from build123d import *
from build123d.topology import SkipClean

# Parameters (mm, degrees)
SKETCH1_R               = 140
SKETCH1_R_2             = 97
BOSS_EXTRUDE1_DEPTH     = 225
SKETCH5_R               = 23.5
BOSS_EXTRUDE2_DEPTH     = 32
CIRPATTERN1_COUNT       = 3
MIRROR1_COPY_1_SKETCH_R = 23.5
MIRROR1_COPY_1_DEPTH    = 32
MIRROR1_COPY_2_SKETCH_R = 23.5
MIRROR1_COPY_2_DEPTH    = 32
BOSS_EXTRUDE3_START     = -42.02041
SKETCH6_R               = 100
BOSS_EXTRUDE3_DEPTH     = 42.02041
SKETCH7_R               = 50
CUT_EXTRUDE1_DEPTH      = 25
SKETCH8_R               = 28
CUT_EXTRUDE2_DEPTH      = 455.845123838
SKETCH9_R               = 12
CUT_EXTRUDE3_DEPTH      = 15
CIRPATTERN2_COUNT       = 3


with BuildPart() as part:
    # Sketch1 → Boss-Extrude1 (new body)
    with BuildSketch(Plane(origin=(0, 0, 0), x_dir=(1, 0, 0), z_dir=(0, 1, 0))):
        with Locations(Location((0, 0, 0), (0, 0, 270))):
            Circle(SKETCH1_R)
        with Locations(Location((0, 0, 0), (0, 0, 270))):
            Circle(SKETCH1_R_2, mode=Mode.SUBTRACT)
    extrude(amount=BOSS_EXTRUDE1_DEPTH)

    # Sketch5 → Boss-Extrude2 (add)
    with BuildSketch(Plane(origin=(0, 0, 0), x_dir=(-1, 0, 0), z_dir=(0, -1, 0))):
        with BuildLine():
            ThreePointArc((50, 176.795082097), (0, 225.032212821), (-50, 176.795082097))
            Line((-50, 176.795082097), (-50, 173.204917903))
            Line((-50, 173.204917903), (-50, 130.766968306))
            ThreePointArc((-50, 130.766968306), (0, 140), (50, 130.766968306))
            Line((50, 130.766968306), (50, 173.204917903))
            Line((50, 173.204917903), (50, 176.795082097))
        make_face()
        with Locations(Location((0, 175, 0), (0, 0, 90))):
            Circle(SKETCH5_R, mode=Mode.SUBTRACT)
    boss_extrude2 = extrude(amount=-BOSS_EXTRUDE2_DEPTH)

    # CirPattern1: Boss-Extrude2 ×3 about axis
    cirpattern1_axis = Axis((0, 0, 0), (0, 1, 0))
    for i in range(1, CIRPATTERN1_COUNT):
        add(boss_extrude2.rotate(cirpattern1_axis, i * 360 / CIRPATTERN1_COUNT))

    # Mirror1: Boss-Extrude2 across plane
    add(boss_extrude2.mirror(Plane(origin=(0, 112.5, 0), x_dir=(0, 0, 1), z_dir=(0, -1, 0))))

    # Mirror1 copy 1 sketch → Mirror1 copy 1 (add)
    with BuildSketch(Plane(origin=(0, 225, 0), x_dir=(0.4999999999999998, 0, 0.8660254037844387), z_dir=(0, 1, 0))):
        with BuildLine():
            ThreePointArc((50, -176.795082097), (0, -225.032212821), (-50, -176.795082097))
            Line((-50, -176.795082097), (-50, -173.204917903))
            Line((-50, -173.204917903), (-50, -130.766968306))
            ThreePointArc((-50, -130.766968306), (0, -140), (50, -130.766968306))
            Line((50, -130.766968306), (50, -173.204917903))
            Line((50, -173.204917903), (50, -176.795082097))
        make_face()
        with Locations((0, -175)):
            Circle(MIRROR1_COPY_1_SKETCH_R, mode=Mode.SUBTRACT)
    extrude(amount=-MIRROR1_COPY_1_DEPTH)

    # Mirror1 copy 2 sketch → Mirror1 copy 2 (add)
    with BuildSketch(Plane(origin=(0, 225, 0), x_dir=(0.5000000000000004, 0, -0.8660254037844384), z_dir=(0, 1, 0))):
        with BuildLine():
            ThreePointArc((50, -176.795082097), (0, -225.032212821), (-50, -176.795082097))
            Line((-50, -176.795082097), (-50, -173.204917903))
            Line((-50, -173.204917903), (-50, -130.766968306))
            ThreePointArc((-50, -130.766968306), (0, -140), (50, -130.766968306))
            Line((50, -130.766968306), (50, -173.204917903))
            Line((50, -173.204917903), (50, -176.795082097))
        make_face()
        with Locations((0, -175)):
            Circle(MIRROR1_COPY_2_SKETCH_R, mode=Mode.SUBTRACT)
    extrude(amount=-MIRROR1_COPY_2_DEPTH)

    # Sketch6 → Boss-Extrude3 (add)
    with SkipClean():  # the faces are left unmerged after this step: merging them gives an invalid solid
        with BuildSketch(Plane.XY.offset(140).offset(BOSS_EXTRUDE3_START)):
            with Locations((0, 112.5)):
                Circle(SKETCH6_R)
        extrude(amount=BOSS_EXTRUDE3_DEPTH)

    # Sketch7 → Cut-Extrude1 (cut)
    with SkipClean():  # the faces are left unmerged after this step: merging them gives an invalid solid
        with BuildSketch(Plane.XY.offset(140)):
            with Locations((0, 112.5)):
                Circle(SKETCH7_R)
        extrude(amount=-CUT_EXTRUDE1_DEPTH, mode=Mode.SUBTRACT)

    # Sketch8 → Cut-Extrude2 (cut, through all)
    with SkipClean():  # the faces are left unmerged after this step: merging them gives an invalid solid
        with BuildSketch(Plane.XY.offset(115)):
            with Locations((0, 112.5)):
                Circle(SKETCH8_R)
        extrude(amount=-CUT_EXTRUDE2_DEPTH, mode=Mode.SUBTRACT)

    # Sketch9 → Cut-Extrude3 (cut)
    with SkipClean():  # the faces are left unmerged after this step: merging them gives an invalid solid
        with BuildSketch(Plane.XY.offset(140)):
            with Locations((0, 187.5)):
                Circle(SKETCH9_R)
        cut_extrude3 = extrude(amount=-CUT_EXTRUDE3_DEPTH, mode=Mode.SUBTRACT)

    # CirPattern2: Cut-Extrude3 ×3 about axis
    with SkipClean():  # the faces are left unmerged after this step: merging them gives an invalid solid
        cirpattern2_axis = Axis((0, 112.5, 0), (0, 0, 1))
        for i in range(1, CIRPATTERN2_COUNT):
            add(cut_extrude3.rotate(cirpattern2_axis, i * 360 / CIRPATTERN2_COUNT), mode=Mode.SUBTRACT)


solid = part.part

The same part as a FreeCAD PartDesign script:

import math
import FreeCAD as App
import Part
import Sketcher
from FreeCAD import Vector
Q = App.Units.Quantity

doc = App.newDocument("Part")
params = doc.addObject("Spreadsheet::Sheet", "Params")
for row, (alias, value) in enumerate([
    ("sketch1_diameter", "280 mm"),
    ("sketch1_diameter2", "194 mm"),
    ("pad1_length", "225 mm"),
    ("sketch2_diameter", "47 mm"),
    ("sketch2_radius", "140 mm"),
    ("pad2_length", "32 mm"),
    ("sketch3_diameter", "47 mm"),
    ("sketch3_radius", "140 mm"),
    ("pad3_length", "32 mm"),
    ("sketch4_diameter", "47 mm"),
    ("sketch4_radius", "140 mm"),
    ("pad4_length", "32 mm"),
    ("sketch5_diameter", "200 mm"),
    ("pad5_length", "42.02041 mm"),
    ("sketch6_diameter", "100 mm"),
    ("pocket1_length", "25 mm"),
    ("sketch7_diameter", "56 mm"),
    ("sketch8_diameter", "24 mm"),
    ("pocket3_length", "15 mm"),
], start=1):
    params.set(f"A{row}", alias)
    params.set(f"B{row}", "=" + value)
    params.setAlias(f"B{row}", alias)

body = doc.addObject("PartDesign::Body", "Body")

# Sketch on XZ plane
sketch1 = body.newObject("Sketcher::SketchObject", "Sketch")
sketch1.AttachmentSupport = (doc.getObject("XZ_Plane"), [""])
sketch1.MapMode = "FlatFace"
sketch1.addGeometry([
    Part.Circle(Vector(0, 0, 0), Vector(0, 0, 1), 140),
    Part.Circle(Vector(0, 0, 0), Vector(0, 0, 1), 97),
], False)
sketch1.addConstraint([
    Sketcher.Constraint("Coincident", 0, 3, -1, 1),
    Sketcher.Constraint("Coincident", 1, 3, -1, 1),
    Sketcher.Constraint("Diameter", 0, Q("280 mm")),
    Sketcher.Constraint("Diameter", 1, Q("194 mm")),
])
sketch1.setExpression("Constraints[2]", "Params.sketch1_diameter")
sketch1.setExpression("Constraints[3]", "Params.sketch1_diameter2")
pad1 = body.newObject("PartDesign::Pad", "Pad")
pad1.Profile = sketch1
pad1.setExpression("Length", "Params.pad1_length")
pad1.Reversed = True

# Sketch on XZ plane
sketch2 = body.newObject("Sketcher::SketchObject", "Sketch001")
sketch2.AttachmentSupport = (doc.getObject("XZ_Plane"), [""])
sketch2.MapMode = "FlatFace"
sketch2.addGeometry([
    Part.ArcOfCircle(Part.Circle(Vector(0, -175, 0), Vector(0, 0, 1), 50.032213), math.radians(-177.943871), math.radians(-2.056129)),  # 0
    Part.LineSegment(Vector(50, -176.795082, 0), Vector(50, -130.766968, 0)),  # 1
    Part.ArcOfCircle(Part.Circle(Vector(0, 0, 0), Vector(0, 0, 1), 140), math.radians(-110.924832), math.radians(-69.075168)),  # 2
    Part.LineSegment(Vector(-50, -130.766968, 0), Vector(-50, -176.795082, 0)),  # 3
    Part.Circle(Vector(0, -175, 0), Vector(0, 0, 1), 23.5),  # 4
], False)
sketch2.addConstraint([
    Sketcher.Constraint("Coincident", 0, 2, 1, 1),
    Sketcher.Constraint("Coincident", 1, 2, 2, 2),
    Sketcher.Constraint("Coincident", 2, 1, 3, 1),
    Sketcher.Constraint("Coincident", 3, 2, 0, 1),
    Sketcher.Constraint("Vertical", 1),
    Sketcher.Constraint("Vertical", 3),
    Sketcher.Constraint("Coincident", 2, 3, -1, 1),
    Sketcher.Constraint("Coincident", 4, 3, 0, 3),
    Sketcher.Constraint("Symmetric", 0, 2, 3, 2, -2),
    Sketcher.Constraint("Diameter", 4, Q("47 mm")),
    Sketcher.Constraint("Radius", 2, Q("140 mm")),
    Sketcher.Constraint("DistanceY", 0, 3, -1, 1, Q("175 mm")),
    Sketcher.Constraint("DistanceX", -1, 1, 0, 2, Q("50 mm")),
    Sketcher.Constraint("Radius", 0, Q("50.032213 mm")),
])
sketch2.setExpression("Constraints[9]", "Params.sketch2_diameter")
sketch2.setExpression("Constraints[10]", "Params.sketch2_radius")
pad2 = body.newObject("PartDesign::Pad", "Pad001")
pad2.Profile = sketch2
pad2.setExpression("Length", "Params.pad2_length")
pad2.Reversed = True
doc.recompute()

polarpattern = body.newObject("PartDesign::PolarPattern", "PolarPattern")
polarpattern.Originals = [pad2]
polarpattern.Axis = (doc.getObject("Y_Axis"), [""])
polarpattern.Angle = 360
polarpattern.Occurrences = 3
body.Tip = polarpattern
doc.recompute()

datumplane = body.newObject("PartDesign::Plane", "DatumPlane")
datumplane.AttachmentSupport = (doc.getObject("XZ_Plane"), [""])
datumplane.MapMode = "FlatFace"
datumplane.AttachmentOffset = App.Placement(Vector(0, 0, -112.5), App.Rotation())
mirrored = body.newObject("PartDesign::Mirrored", "Mirrored")
mirrored.Originals = [pad2]
mirrored.MirrorPlane = (datumplane, [""])
body.Tip = mirrored

# Sketch on XZ plane
sketch3 = body.newObject("Sketcher::SketchObject", "Sketch002")
sketch3.AttachmentSupport = (doc.getObject("XZ_Plane"), [""])
sketch3.MapMode = "FlatFace"
sketch3.AttachmentOffset = App.Placement(Vector(0, 0, -225), App.Rotation())
sketch3.addGeometry([
    Part.ArcOfCircle(Part.Circle(Vector(-151.554446, 87.5, 0), Vector(0, 0, 1), 50.032213), math.radians(62.056129), math.radians(237.943871)),  # 0
    Part.LineSegment(Vector(-128.109032, 131.698811, 0), Vector(-88.247517, 108.684754, 0)),  # 1
    Part.ArcOfCircle(Part.Circle(Vector(0, 0, 0), Vector(0, 0, 1), 140), math.radians(129.075168), math.radians(170.924832)),  # 2
    Part.LineSegment(Vector(-138.247517, 22.082214, 0), Vector(-178.109032, 45.096271, 0)),  # 3
    Part.Circle(Vector(-151.554446, 87.5, 0), Vector(0, 0, 1), 23.5),  # 4
], False)
sketch3.addConstraint([
    Sketcher.Constraint("Coincident", 0, 1, 1, 1),
    Sketcher.Constraint("Coincident", 1, 2, 2, 1),
    Sketcher.Constraint("Coincident", 2, 2, 3, 1),
    Sketcher.Constraint("Coincident", 3, 2, 0, 2),
    Sketcher.Constraint("Coincident", 2, 3, -1, 1),
    Sketcher.Constraint("Coincident", 4, 3, 0, 3),
    Sketcher.Constraint("Parallel", 1, 3),
    Sketcher.Constraint("Equal", 1, 3),
    Sketcher.Constraint("Diameter", 4, Q("47 mm")),
    Sketcher.Constraint("Radius", 2, Q("140 mm")),
    Sketcher.Constraint("Angle", 1, Q("-30 deg")),
    Sketcher.Constraint("DistanceX", 2, 2, 1, 2, Q("50 mm")),
    Sketcher.Constraint("DistanceY", -1, 1, 0, 3, Q("87.5 mm")),
    Sketcher.Constraint("Radius", 0, Q("50.032213 mm")),
    Sketcher.Constraint("DistanceY", -1, 1, 0, 1, Q("131.698811 mm")),
])
sketch3.setExpression("Constraints[8]", "Params.sketch3_diameter")
sketch3.setExpression("Constraints[9]", "Params.sketch3_radius")
pad3 = body.newObject("PartDesign::Pad", "Pad002")
pad3.Profile = sketch3
pad3.setExpression("Length", "Params.pad3_length")

# Sketch on XZ plane
sketch4 = body.newObject("Sketcher::SketchObject", "Sketch003")
sketch4.AttachmentSupport = (doc.getObject("XZ_Plane"), [""])
sketch4.MapMode = "FlatFace"
sketch4.AttachmentOffset = App.Placement(Vector(0, 0, -225), App.Rotation())
sketch4.addGeometry([
    Part.ArcOfCircle(Part.Circle(Vector(151.554446, 87.5, 0), Vector(0, 0, 1), 50.032213), math.radians(-57.943871), math.radians(117.943871)),  # 0
    Part.LineSegment(Vector(178.109032, 45.096271, 0), Vector(138.247517, 22.082214, 0)),  # 1
    Part.ArcOfCircle(Part.Circle(Vector(0, 0, 0), Vector(0, 0, 1), 140), math.radians(9.075168), math.radians(50.924832)),  # 2
    Part.LineSegment(Vector(88.247517, 108.684754, 0), Vector(128.109032, 131.698811, 0)),  # 3
    Part.Circle(Vector(151.554446, 87.5, 0), Vector(0, 0, 1), 23.5),  # 4
], False)
sketch4.addConstraint([
    Sketcher.Constraint("Coincident", 0, 1, 1, 1),
    Sketcher.Constraint("Coincident", 1, 2, 2, 1),
    Sketcher.Constraint("Coincident", 2, 2, 3, 1),
    Sketcher.Constraint("Coincident", 3, 2, 0, 2),
    Sketcher.Constraint("Coincident", 2, 3, -1, 1),
    Sketcher.Constraint("Coincident", 4, 3, 0, 3),
    Sketcher.Constraint("Parallel", 1, 3),
    Sketcher.Constraint("Equal", 1, 3),
    Sketcher.Constraint("Diameter", 4, Q("47 mm")),
    Sketcher.Constraint("Radius", 2, Q("140 mm")),
    Sketcher.Constraint("Angle", 1, Q("-150 deg")),
    Sketcher.Constraint("DistanceX", 2, 2, 1, 2, Q("50 mm")),
    Sketcher.Constraint("DistanceY", -1, 1, 0, 3, Q("87.5 mm")),
    Sketcher.Constraint("Radius", 0, Q("50.032213 mm")),
    Sketcher.Constraint("DistanceY", -1, 1, 0, 1, Q("45.096271 mm")),
])
sketch4.setExpression("Constraints[8]", "Params.sketch4_diameter")
sketch4.setExpression("Constraints[9]", "Params.sketch4_radius")
pad4 = body.newObject("PartDesign::Pad", "Pad003")
pad4.Profile = sketch4
pad4.setExpression("Length", "Params.pad4_length")

# Sketch on XY plane
sketch5 = body.newObject("Sketcher::SketchObject", "Sketch004")
sketch5.AttachmentSupport = (doc.getObject("XY_Plane"), [""])
sketch5.MapMode = "FlatFace"
sketch5.AttachmentOffset = App.Placement(Vector(0, 0, 97.97959), App.Rotation())
sketch5.addGeometry(Part.Circle(Vector(0, 112.5, 0), Vector(0, 0, 1), 100), False)
sketch5.addConstraint([
    Sketcher.Constraint("PointOnObject", 0, 3, -2),
    Sketcher.Constraint("Diameter", 0, Q("200 mm")),
    Sketcher.Constraint("DistanceY", -1, 1, 0, 3, Q("112.5 mm")),
])
sketch5.setExpression("Constraints[1]", "Params.sketch5_diameter")
pad5 = body.newObject("PartDesign::Pad", "Pad004")
pad5.Profile = sketch5
pad5.setExpression("Length", "Params.pad5_length")

# Sketch on XY plane
sketch6 = body.newObject("Sketcher::SketchObject", "Sketch005")
sketch6.AttachmentSupport = (doc.getObject("XY_Plane"), [""])
sketch6.MapMode = "FlatFace"
sketch6.AttachmentOffset = App.Placement(Vector(0, 0, 140), App.Rotation())
sketch6.addGeometry(Part.Circle(Vector(0, 112.5, 0), Vector(0, 0, 1), 50), False)
sketch6.addConstraint([
    Sketcher.Constraint("PointOnObject", 0, 3, -2),
    Sketcher.Constraint("Diameter", 0, Q("100 mm")),
    Sketcher.Constraint("DistanceY", -1, 1, 0, 3, Q("112.5 mm")),
])
sketch6.setExpression("Constraints[1]", "Params.sketch6_diameter")
pocket1 = body.newObject("PartDesign::Pocket", "Pocket")
pocket1.Profile = sketch6
pocket1.setExpression("Length", "Params.pocket1_length")

# Sketch on XY plane
sketch7 = body.newObject("Sketcher::SketchObject", "Sketch006")
sketch7.AttachmentSupport = (doc.getObject("XY_Plane"), [""])
sketch7.MapMode = "FlatFace"
sketch7.AttachmentOffset = App.Placement(Vector(0, 0, 115), App.Rotation())
sketch7.addGeometry(Part.Circle(Vector(0, 112.5, 0), Vector(0, 0, 1), 28), False)
sketch7.addConstraint([
    Sketcher.Constraint("PointOnObject", 0, 3, -2),
    Sketcher.Constraint("Diameter", 0, Q("56 mm")),
    Sketcher.Constraint("DistanceY", -1, 1, 0, 3, Q("112.5 mm")),
])
sketch7.setExpression("Constraints[1]", "Params.sketch7_diameter")
pocket2 = body.newObject("PartDesign::Pocket", "Pocket001")
pocket2.Profile = sketch7
pocket2.Type = "ThroughAll"

# Sketch on XY plane
sketch8 = body.newObject("Sketcher::SketchObject", "Sketch007")
sketch8.AttachmentSupport = (doc.getObject("XY_Plane"), [""])
sketch8.MapMode = "FlatFace"
sketch8.AttachmentOffset = App.Placement(Vector(0, 0, 140), App.Rotation())
sketch8.addGeometry(Part.Circle(Vector(0, 187.5, 0), Vector(0, 0, 1), 12), False)
sketch8.addConstraint([
    Sketcher.Constraint("PointOnObject", 0, 3, -2),
    Sketcher.Constraint("Diameter", 0, Q("24 mm")),
    Sketcher.Constraint("DistanceY", -1, 1, 0, 3, Q("187.5 mm")),
])
sketch8.setExpression("Constraints[1]", "Params.sketch8_diameter")
pocket3 = body.newObject("PartDesign::Pocket", "Pocket002")
pocket3.Profile = sketch8
pocket3.setExpression("Length", "Params.pocket3_length")
doc.recompute()

datumline = body.newObject("PartDesign::Line", "DatumLine")
datumline.Placement = App.Placement(Vector(0, 112.5, 0), App.Rotation(Vector(0, 0, 1), Vector(0, 0, 1)))
polarpattern2 = body.newObject("PartDesign::PolarPattern", "PolarPattern001")
polarpattern2.Originals = [pocket3]
polarpattern2.Axis = (datumline, [""])
polarpattern2.Angle = 360
polarpattern2.Occurrences = 3
body.Tip = polarpattern2

doc.recompute()
